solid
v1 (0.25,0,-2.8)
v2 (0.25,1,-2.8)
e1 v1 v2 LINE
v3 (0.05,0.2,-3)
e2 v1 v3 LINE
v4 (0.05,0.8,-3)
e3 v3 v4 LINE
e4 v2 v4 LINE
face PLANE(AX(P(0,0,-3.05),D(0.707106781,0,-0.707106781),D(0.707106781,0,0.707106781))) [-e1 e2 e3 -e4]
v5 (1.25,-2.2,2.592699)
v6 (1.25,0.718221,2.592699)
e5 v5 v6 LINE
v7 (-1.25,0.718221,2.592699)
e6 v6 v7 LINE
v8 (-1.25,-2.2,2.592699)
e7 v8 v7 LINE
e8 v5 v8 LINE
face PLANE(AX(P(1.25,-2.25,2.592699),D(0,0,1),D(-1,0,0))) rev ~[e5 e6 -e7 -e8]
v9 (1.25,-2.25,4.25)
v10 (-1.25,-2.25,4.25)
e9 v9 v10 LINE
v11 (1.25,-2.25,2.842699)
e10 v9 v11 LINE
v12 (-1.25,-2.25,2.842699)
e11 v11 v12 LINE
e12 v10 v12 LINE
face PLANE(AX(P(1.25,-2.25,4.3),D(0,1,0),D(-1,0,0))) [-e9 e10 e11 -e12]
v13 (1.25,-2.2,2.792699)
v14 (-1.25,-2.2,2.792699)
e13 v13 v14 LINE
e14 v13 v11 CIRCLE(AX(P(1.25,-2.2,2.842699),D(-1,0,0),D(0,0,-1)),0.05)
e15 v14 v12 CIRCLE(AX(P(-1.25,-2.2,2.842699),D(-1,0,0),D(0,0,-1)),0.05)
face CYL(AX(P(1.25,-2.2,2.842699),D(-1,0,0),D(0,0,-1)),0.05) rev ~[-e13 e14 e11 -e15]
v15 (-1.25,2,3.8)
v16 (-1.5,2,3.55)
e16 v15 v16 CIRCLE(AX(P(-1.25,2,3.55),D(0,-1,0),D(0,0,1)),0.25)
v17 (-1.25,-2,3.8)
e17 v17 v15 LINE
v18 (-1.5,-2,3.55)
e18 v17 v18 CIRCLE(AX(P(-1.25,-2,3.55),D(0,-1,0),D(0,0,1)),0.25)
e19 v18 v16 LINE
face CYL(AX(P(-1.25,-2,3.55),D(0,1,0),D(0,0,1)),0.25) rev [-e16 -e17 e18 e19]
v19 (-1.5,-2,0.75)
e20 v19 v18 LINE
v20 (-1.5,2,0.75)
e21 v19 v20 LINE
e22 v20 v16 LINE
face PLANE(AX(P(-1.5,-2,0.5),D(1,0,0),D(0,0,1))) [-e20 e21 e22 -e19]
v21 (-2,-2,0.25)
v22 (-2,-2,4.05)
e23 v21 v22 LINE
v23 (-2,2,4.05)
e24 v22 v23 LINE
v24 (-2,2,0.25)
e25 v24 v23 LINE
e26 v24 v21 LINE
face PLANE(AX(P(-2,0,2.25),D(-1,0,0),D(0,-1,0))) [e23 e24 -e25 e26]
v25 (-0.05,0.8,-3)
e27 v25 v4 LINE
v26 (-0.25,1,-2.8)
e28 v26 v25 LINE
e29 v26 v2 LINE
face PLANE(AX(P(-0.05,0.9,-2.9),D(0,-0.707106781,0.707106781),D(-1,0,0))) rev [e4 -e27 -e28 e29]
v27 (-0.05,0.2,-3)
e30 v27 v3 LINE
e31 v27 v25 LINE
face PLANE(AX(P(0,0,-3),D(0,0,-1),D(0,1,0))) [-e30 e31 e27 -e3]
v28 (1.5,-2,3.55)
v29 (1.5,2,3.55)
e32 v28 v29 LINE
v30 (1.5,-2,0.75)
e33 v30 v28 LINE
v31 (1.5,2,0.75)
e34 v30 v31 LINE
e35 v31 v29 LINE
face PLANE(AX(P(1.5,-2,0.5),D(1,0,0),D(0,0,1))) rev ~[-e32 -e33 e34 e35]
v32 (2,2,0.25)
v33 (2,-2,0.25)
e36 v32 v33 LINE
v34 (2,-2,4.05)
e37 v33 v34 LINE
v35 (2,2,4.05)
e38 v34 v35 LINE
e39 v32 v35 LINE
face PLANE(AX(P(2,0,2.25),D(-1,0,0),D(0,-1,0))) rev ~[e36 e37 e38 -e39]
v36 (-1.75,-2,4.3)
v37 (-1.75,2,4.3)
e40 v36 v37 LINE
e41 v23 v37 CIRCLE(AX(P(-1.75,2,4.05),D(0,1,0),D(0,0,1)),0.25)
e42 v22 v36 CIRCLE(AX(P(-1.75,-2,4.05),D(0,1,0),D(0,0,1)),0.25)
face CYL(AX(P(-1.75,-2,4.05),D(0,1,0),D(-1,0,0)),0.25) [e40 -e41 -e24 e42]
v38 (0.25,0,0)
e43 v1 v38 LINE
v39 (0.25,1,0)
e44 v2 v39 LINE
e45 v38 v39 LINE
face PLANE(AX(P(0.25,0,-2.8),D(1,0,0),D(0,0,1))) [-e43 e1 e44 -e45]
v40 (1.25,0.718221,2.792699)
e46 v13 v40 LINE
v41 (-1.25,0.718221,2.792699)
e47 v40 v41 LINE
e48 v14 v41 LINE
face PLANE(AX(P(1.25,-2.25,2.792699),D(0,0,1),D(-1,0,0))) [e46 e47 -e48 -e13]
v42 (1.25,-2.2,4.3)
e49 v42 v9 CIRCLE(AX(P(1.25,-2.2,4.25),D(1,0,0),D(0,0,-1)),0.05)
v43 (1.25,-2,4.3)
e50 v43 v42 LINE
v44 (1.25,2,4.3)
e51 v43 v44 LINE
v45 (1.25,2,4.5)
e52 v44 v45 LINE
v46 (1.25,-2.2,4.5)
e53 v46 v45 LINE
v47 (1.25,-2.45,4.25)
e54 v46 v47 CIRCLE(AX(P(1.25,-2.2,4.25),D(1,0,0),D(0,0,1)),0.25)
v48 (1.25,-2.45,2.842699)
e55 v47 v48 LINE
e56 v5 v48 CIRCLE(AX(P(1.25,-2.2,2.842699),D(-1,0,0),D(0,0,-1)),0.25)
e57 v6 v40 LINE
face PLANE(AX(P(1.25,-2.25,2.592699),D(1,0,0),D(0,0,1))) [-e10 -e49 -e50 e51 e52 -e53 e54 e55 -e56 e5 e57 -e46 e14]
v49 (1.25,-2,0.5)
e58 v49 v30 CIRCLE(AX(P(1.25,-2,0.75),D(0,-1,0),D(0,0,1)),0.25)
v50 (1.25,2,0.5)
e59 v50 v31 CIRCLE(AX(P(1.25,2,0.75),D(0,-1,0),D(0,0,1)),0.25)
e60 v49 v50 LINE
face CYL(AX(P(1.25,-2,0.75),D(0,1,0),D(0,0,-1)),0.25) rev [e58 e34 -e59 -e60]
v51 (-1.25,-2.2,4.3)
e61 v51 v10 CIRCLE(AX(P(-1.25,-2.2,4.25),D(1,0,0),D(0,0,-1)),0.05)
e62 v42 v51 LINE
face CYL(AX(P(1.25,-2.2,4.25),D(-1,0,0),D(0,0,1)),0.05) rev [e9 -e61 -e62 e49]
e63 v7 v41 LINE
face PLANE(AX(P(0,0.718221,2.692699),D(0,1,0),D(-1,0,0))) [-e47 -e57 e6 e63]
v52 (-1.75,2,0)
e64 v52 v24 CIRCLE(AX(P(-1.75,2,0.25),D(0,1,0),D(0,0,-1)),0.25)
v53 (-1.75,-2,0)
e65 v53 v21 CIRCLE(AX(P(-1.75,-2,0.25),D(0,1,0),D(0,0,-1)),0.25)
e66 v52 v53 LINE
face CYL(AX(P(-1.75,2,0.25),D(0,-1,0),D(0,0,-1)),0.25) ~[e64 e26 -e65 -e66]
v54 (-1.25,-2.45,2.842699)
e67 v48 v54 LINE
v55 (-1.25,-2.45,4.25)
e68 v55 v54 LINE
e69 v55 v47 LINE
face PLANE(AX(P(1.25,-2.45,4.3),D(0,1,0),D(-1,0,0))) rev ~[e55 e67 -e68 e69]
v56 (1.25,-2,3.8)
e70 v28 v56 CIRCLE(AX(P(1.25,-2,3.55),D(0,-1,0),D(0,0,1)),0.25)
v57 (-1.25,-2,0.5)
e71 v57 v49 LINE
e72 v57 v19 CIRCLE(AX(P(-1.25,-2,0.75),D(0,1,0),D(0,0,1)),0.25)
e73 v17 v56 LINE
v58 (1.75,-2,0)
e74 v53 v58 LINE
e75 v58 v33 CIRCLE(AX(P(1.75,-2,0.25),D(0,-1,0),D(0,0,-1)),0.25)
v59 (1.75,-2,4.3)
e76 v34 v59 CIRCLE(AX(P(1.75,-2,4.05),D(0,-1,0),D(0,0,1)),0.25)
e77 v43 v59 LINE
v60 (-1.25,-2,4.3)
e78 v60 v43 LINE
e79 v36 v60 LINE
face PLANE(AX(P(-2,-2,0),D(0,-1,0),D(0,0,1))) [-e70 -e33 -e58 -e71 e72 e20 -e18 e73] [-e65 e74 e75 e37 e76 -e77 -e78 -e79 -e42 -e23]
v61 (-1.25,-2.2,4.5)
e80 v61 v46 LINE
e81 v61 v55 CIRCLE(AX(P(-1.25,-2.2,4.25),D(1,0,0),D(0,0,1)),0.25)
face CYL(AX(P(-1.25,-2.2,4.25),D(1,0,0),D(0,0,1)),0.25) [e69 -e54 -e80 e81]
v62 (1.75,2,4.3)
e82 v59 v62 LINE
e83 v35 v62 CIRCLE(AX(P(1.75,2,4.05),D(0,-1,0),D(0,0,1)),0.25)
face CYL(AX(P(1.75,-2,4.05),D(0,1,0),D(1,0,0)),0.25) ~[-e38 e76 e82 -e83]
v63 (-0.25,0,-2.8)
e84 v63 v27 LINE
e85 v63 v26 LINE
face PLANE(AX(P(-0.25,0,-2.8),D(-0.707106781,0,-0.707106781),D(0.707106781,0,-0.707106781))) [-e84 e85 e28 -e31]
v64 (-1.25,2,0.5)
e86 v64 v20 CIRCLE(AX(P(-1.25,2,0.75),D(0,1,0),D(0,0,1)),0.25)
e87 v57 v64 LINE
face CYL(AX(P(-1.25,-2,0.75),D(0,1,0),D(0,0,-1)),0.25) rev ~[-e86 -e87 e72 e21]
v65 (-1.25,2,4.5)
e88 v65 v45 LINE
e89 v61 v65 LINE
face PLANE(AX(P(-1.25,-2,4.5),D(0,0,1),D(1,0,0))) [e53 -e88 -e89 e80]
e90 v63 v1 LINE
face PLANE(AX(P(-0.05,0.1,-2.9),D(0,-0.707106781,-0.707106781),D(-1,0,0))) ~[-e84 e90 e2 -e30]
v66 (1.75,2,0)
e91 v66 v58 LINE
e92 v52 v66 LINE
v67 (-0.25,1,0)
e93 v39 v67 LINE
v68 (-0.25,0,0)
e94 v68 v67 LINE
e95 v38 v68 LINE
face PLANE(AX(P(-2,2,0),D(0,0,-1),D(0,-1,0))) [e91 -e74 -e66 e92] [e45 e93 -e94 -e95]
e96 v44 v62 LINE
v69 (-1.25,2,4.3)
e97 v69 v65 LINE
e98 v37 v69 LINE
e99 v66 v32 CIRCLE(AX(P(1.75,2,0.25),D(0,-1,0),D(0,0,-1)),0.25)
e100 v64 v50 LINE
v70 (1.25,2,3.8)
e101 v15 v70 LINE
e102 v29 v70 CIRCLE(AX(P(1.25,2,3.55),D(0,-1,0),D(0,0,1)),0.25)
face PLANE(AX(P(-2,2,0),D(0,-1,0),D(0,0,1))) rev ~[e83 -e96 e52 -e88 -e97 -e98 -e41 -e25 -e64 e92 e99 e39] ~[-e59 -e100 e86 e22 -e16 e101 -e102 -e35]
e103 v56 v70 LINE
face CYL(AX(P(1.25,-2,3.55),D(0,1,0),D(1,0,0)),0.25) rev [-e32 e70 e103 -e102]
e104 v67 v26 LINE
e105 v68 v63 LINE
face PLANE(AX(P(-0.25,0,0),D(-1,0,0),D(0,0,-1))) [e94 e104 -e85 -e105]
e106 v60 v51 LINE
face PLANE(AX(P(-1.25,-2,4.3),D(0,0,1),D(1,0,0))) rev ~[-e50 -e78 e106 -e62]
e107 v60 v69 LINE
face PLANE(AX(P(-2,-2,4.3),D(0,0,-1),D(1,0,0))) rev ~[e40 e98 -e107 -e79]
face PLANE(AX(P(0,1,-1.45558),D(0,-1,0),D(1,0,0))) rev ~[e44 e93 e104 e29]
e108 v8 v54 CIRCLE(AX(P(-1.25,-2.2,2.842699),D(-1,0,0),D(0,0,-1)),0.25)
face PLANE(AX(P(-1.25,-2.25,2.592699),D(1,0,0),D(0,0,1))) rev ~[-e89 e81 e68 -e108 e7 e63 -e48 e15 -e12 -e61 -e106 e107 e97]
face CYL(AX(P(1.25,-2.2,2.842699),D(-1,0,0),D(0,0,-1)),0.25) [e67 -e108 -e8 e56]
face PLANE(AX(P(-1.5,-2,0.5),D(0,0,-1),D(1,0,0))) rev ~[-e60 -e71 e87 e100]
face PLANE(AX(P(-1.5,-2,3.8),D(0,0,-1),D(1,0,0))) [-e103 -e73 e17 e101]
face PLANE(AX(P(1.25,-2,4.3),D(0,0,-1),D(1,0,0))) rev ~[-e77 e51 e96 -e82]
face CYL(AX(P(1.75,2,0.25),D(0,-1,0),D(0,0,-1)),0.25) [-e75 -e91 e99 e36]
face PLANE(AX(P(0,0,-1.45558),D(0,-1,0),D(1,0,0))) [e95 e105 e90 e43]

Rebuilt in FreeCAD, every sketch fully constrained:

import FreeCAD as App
import Part
import Sketcher
from FreeCAD import Vector
Q = App.Units.Quantity


def edges_at(feature, points):
    """Names of the edges that pass closest to the given points."""
    edges = feature.Shape.Edges
    near = lambda p: min(range(len(edges)), key=lambda i: edges[i].distToShape(Part.Vertex(*p))[0])
    return sorted({f"Edge{near(p) + 1}" for p in points})


def add_polygon(sketch, points):
    """Adds a closed chain of lines whose ends are joined by coincident constraints."""
    first, n = sketch.GeometryCount, len(points)
    for a, b in zip(points, points[1:] + points[:1]):
        sketch.addGeometry(Part.LineSegment(App.Vector(*a, 0), App.Vector(*b, 0)), False)
    for i in range(n):
        sketch.addConstraint(Sketcher.Constraint("Coincident", first + i, 2, first + (i + 1) % n, 1))

doc = App.newDocument("Part")
params = doc.addObject("Spreadsheet::Sheet", "Params")
for row, (alias, value) in enumerate([
    ("sketch1_width", "4 mm"),
    ("sketch1_height", "4.5 mm"),
    ("pad1_length", "4 mm"),
    ("sketch2_height", "0.2 mm"),
    ("sketch2_width", "0.75 mm"),
    ("sketch3_height", "0.2 mm"),
    ("sketch3_width", "0.75 mm"),
    ("pocket2_length", "4 mm"),
    ("sketch4_width", "2.5 mm"),
    ("sketch4_height", "0.2 mm"),
    ("pad2_length", "0.45 mm"),
    ("sketch5_width", "2.5 mm"),
    ("sketch5_height", "0.2 mm"),
    ("pad3_length", "1.707301 mm"),
    ("sketch6_width", "3 mm"),
    ("sketch6_height", "3.3 mm"),
    ("sketch7_width", "2.5 mm"),
    ("sketch7_height", "0.2 mm"),
    ("pad4_length", "2.968221 mm"),
    ("sketch8_width", "0.5 mm"),
    ("sketch8_height", "2.8 mm"),
    ("pad5_length", "1 mm"),
    ("chamfer_size", "0.070711 mm"),
    ("fillet_radius", "0.05 mm"),
    ("chamfer2_size", "0.2 mm"),
    ("fillet2_radius", "0.25 mm"),
], start=1):
    params.set(f"A{row}", alias)
    params.set(f"B{row}", "=" + value)
    params.setAlias(f"B{row}", alias)

body = doc.addObject("PartDesign::Body", "Body")

sketch1 = doc.addObject("Sketcher::SketchObject", "Sketch")
body.addObject(sketch1)
sketch1.AttachmentSupport = (doc.YZ_Plane, [""])
sketch1.MapMode = "FlatFace"
sketch1.AttachmentOffset = App.Placement(Vector(0, 0, -2), App.Rotation())
add_polygon(sketch1, [(2, 4.5), (2, 0), (-2, 0), (-2, 4.5)])
sketch1.addConstraint(Sketcher.Constraint("Vertical", 0))
sketch1.addConstraint(Sketcher.Constraint("Horizontal", 1))
sketch1.addConstraint(Sketcher.Constraint("Vertical", 2))
sketch1.addConstraint(Sketcher.Constraint("Horizontal", 3))
sketch1.addConstraint(Sketcher.Constraint("Symmetric", 0, 2, 1, 2, -1, 1))
sketch1.addConstraint(Sketcher.Constraint("DistanceX", 1, 2, 1, 1, Q("4 mm")))
sketch1.addConstraint(Sketcher.Constraint("DistanceY", 0, 2, 0, 1, Q("4.5 mm")))
sketch1.setExpression("Constraints[9]", "Params.sketch1_width")
sketch1.setExpression("Constraints[10]", "Params.sketch1_height")
pad1 = doc.addObject("PartDesign::Pad", "Pad")
body.addObject(pad1)
pad1.Profile = sketch1
pad1.setExpression("Length", "Params.pad1_length")

sketch2 = doc.addObject("Sketcher::SketchObject", "Sketch001")
body.addObject(sketch2)
sketch2.AttachmentSupport = (doc.XZ_Plane, [""])
sketch2.MapMode = "FlatFace"
sketch2.AttachmentOffset = App.Placement(Vector(0, 0, 2), App.Rotation())
add_polygon(sketch2, [(-2, 4.5), (-2, 4.3), (-1.25, 4.3), (-1.25, 4.5)])
sketch2.addConstraint(Sketcher.Constraint("Vertical", 0))
sketch2.addConstraint(Sketcher.Constraint("Horizontal", 1))
sketch2.addConstraint(Sketcher.Constraint("Vertical", 2))
sketch2.addConstraint(Sketcher.Constraint("Horizontal", 3))
sketch2.addConstraint(Sketcher.Constraint("DistanceY", 0, 2, 0, 1, Q("0.2 mm")))
sketch2.addConstraint(Sketcher.Constraint("DistanceX", 0, 2, -1, 1, Q("2 mm")))
sketch2.addConstraint(Sketcher.Constraint("DistanceX", 1, 1, 1, 2, Q("0.75 mm")))
sketch2.addConstraint(Sketcher.Constraint("DistanceY", -1, 1, 0, 2, Q("4.3 mm")))
sketch2.setExpression("Constraints[8]", "Params.sketch2_height")
sketch2.setExpression("Constraints[10]", "Params.sketch2_width")
pocket1 = doc.addObject("PartDesign::Pocket", "Pocket")
body.addObject(pocket1)
pocket1.Profile = sketch2
pocket1.Type = "ThroughAll"

sketch3 = doc.addObject("Sketcher::SketchObject", "Sketch002")
body.addObject(sketch3)
sketch3.AttachmentSupport = (doc.XZ_Plane, [""])
sketch3.MapMode = "FlatFace"
sketch3.AttachmentOffset = App.Placement(Vector(0, 0, 2), App.Rotation())
add_polygon(sketch3, [(1.25, 4.5), (1.25, 4.3), (2, 4.3), (2, 4.5)])
sketch3.addConstraint(Sketcher.Constraint("Vertical", 0))
sketch3.addConstraint(Sketcher.Constraint("Horizontal", 1))
sketch3.addConstraint(Sketcher.Constraint("Vertical", 2))
sketch3.addConstraint(Sketcher.Constraint("Horizontal", 3))
sketch3.addConstraint(Sketcher.Constraint("DistanceY", 0, 2, 0, 1, Q("0.2 mm")))
sketch3.addConstraint(Sketcher.Constraint("DistanceX", -1, 1, 1, 2, Q("2 mm")))
sketch3.addConstraint(Sketcher.Constraint("DistanceX", 1, 1, 1, 2, Q("0.75 mm")))
sketch3.addConstraint(Sketcher.Constraint("DistanceY", -1, 1, 0, 2, Q("4.3 mm")))
sketch3.setExpression("Constraints[8]", "Params.sketch3_height")
sketch3.setExpression("Constraints[10]", "Params.sketch3_width")
pocket2 = doc.addObject("PartDesign::Pocket", "Pocket001")
body.addObject(pocket2)
pocket2.Profile = sketch3
pocket2.setExpression("Length", "Params.pocket2_length")

sketch4 = doc.addObject("Sketcher::SketchObject", "Sketch003")
body.addObject(sketch4)
sketch4.AttachmentSupport = (doc.XZ_Plane, [""])
sketch4.MapMode = "FlatFace"
sketch4.AttachmentOffset = App.Placement(Vector(0, 0, 2), App.Rotation())
add_polygon(sketch4, [(-1.25, 4.5), (-1.25, 4.3), (1.25, 4.3), (1.25, 4.5)])
sketch4.addConstraint(Sketcher.Constraint("Vertical", 0))
sketch4.addConstraint(Sketcher.Constraint("Horizontal", 1))
sketch4.addConstraint(Sketcher.Constraint("Vertical", 2))
sketch4.addConstraint(Sketcher.Constraint("Horizontal", 3))
sketch4.addConstraint(Sketcher.Constraint("DistanceX", 1, 1, 1, 2, Q("2.5 mm")))
sketch4.addConstraint(Sketcher.Constraint("DistanceY", 0, 2, 0, 1, Q("0.2 mm")))
sketch4.addConstraint(Sketcher.Constraint("DistanceY", -1, 1, 0, 2, Q("4.3 mm")))
sketch4.addConstraint(Sketcher.Constraint("DistanceX", 0, 2, -1, 1, Q("1.25 mm")))
sketch4.setExpression("Constraints[8]", "Params.sketch4_width")
sketch4.setExpression("Constraints[9]", "Params.sketch4_height")
pad2 = doc.addObject("PartDesign::Pad", "Pad001")
body.addObject(pad2)
pad2.Profile = sketch4
pad2.setExpression("Length", "Params.pad2_length")

sketch5 = doc.addObject("Sketcher::SketchObject", "Sketch004")
body.addObject(sketch5)
sketch5.AttachmentSupport = (doc.XY_Plane, [""])
sketch5.MapMode = "FlatFace"
sketch5.AttachmentOffset = App.Placement(Vector(0, 0, 4.3), App.Rotation())
add_polygon(sketch5, [(1.25, -2.25), (1.25, -2.45), (-1.25, -2.45), (-1.25, -2.25)])
sketch5.addConstraint(Sketcher.Constraint("Vertical", 0))
sketch5.addConstraint(Sketcher.Constraint("Horizontal", 1))
sketch5.addConstraint(Sketcher.Constraint("Vertical", 2))
sketch5.addConstraint(Sketcher.Constraint("Horizontal", 3))
sketch5.addConstraint(Sketcher.Constraint("DistanceX", 1, 2, 1, 1, Q("2.5 mm")))
sketch5.addConstraint(Sketcher.Constraint("DistanceY", 0, 2, 0, 1, Q("0.2 mm")))
sketch5.addConstraint(Sketcher.Constraint("DistanceX", -1, 1, 0, 2, Q("1.25 mm")))
sketch5.addConstraint(Sketcher.Constraint("DistanceY", 0, 2, -1, 1, Q("2.45 mm")))
sketch5.setExpression("Constraints[8]", "Params.sketch5_width")
sketch5.setExpression("Constraints[9]", "Params.sketch5_height")
pad3 = doc.addObject("PartDesign::Pad", "Pad002")
body.addObject(pad3)
pad3.Profile = sketch5
pad3.setExpression("Length", "Params.pad3_length")
pad3.Reversed = True

sketch6 = doc.addObject("Sketcher::SketchObject", "Sketch005")
body.addObject(sketch6)
sketch6.AttachmentSupport = (doc.XZ_Plane, [""])
sketch6.MapMode = "FlatFace"
sketch6.AttachmentOffset = App.Placement(Vector(0, 0, 2), App.Rotation())
add_polygon(sketch6, [(-1.5, 3.8), (-1.5, 0.5), (1.5, 0.5), (1.5, 3.8)])
sketch6.addConstraint(Sketcher.Constraint("Vertical", 0))
sketch6.addConstraint(Sketcher.Constraint("Horizontal", 1))
sketch6.addConstraint(Sketcher.Constraint("Vertical", 2))
sketch6.addConstraint(Sketcher.Constraint("Horizontal", 3))
sketch6.addConstraint(Sketcher.Constraint("DistanceX", 1, 1, 1, 2, Q("3 mm")))
sketch6.addConstraint(Sketcher.Constraint("DistanceY", 0, 2, 0, 1, Q("3.3 mm")))
sketch6.addConstraint(Sketcher.Constraint("DistanceX", 0, 2, -1, 1, Q("1.5 mm")))
sketch6.addConstraint(Sketcher.Constraint("DistanceY", -1, 1, 0, 2, Q("0.5 mm")))
sketch6.setExpression("Constraints[8]", "Params.sketch6_width")
sketch6.setExpression("Constraints[9]", "Params.sketch6_height")
pocket3 = doc.addObject("PartDesign::Pocket", "Pocket002")
body.addObject(pocket3)
pocket3.Profile = sketch6
pocket3.Type = "ThroughAll"

sketch7 = doc.addObject("Sketcher::SketchObject", "Sketch006")
body.addObject(sketch7)
sketch7.AttachmentSupport = (doc.XZ_Plane, [""])
sketch7.MapMode = "FlatFace"
sketch7.AttachmentOffset = App.Placement(Vector(0, 0, 2.25), App.Rotation())
add_polygon(sketch7, [(1.25, 2.792699), (1.25, 2.592699), (-1.25, 2.592699), (-1.25, 2.792699)])
sketch7.addConstraint(Sketcher.Constraint("Vertical", 0))
sketch7.addConstraint(Sketcher.Constraint("Horizontal", 1))
sketch7.addConstraint(Sketcher.Constraint("Vertical", 2))
sketch7.addConstraint(Sketcher.Constraint("Horizontal", 3))
sketch7.addConstraint(Sketcher.Constraint("DistanceX", 1, 2, 1, 1, Q("2.5 mm")))
sketch7.addConstraint(Sketcher.Constraint("DistanceY", 0, 2, 0, 1, Q("0.2 mm")))
sketch7.addConstraint(Sketcher.Constraint("DistanceX", -1, 1, 0, 2, Q("1.25 mm")))
sketch7.addConstraint(Sketcher.Constraint("DistanceY", -1, 1, 0, 2, Q("2.592699 mm")))
sketch7.setExpression("Constraints[8]", "Params.sketch7_width")
sketch7.setExpression("Constraints[9]", "Params.sketch7_height")
pad4 = doc.addObject("PartDesign::Pad", "Pad003")
body.addObject(pad4)
pad4.Profile = sketch7
pad4.setExpression("Length", "Params.pad4_length")
pad4.Reversed = True

sketch8 = doc.addObject("Sketcher::SketchObject", "Sketch007")
body.addObject(sketch8)
sketch8.AttachmentSupport = (doc.XZ_Plane, [""])
sketch8.MapMode = "FlatFace"
add_polygon(sketch8, [(-0.25, 0), (-0.25, -2.8), (0, -3.05), (0.25, -2.8), (0.25, 0)])
sketch8.addConstraint(Sketcher.Constraint("Vertical", 0))
sketch8.addConstraint(Sketcher.Constraint("Vertical", 3))
sketch8.addConstraint(Sketcher.Constraint("Horizontal", 4))
sketch8.addConstraint(Sketcher.Constraint("Symmetric", 3, 2, 4, 2, -1, 1))
sketch8.addConstraint(Sketcher.Constraint("PointOnObject", 1, 2, -2))
sketch8.addConstraint(Sketcher.Constraint("Perpendicular", 1, 2))
sketch8.addConstraint(Sketcher.Constraint("Horizontal", 0, 2, 2, 2))
sketch8.addConstraint(Sketcher.Constraint("DistanceX", 4, 2, 4, 1, Q("0.5 mm")))
sketch8.addConstraint(Sketcher.Constraint("DistanceY", 0, 2, 0, 1, Q("2.8 mm")))
sketch8.setExpression("Constraints[12]", "Params.sketch8_width")
sketch8.setExpression("Constraints[13]", "Params.sketch8_height")
pad5 = doc.addObject("PartDesign::Pad", "Pad004")
body.addObject(pad5)
pad5.Profile = sketch8
pad5.setExpression("Length", "Params.pad5_length")
pad5.Reversed = True
doc.recompute()

chamfer = doc.addObject("PartDesign::Chamfer", "Chamfer")
body.addObject(chamfer)
chamfer.Base = (pad5, edges_at(pad5, [(0, 0.5, -3.05)]))
chamfer.setExpression("Size", "Params.chamfer_size")
doc.recompute()

fillet = doc.addObject("PartDesign::Fillet", "Fillet")
body.addObject(fillet)
fillet.Base = (chamfer, edges_at(chamfer, [(0, -2.25, 4.3), (0, -2.25, 2.793)]))
fillet.setExpression("Radius", "Params.fillet_radius")
doc.recompute()

chamfer2 = doc.addObject("PartDesign::Chamfer", "Chamfer001")
body.addObject(chamfer2)
chamfer2.Base = (fillet, edges_at(fillet, [(0, 1, -3), (0, 0, -3)]))
chamfer2.setExpression("Size", "Params.chamfer2_size")
doc.recompute()

fillet2 = doc.addObject("PartDesign::Fillet", "Fillet001")
body.addObject(fillet2)
fillet2.Base = (chamfer2, edges_at(chamfer2, [
    (2, 0, 0),
    (-2, 0, 4.3),
    (2, 0, 4.3),
    (0, -2.45, 4.5),
    (-2, 0, 0),
    (0, -2.45, 2.593),
    (-1.5, 0, 0.5),
    (-1.5, 0, 3.8),
    (1.5, 0, 3.8),
    (1.5, 0, 0.5),
]))
fillet2.setExpression("Radius", "Params.fillet2_radius")

doc.recompute()
